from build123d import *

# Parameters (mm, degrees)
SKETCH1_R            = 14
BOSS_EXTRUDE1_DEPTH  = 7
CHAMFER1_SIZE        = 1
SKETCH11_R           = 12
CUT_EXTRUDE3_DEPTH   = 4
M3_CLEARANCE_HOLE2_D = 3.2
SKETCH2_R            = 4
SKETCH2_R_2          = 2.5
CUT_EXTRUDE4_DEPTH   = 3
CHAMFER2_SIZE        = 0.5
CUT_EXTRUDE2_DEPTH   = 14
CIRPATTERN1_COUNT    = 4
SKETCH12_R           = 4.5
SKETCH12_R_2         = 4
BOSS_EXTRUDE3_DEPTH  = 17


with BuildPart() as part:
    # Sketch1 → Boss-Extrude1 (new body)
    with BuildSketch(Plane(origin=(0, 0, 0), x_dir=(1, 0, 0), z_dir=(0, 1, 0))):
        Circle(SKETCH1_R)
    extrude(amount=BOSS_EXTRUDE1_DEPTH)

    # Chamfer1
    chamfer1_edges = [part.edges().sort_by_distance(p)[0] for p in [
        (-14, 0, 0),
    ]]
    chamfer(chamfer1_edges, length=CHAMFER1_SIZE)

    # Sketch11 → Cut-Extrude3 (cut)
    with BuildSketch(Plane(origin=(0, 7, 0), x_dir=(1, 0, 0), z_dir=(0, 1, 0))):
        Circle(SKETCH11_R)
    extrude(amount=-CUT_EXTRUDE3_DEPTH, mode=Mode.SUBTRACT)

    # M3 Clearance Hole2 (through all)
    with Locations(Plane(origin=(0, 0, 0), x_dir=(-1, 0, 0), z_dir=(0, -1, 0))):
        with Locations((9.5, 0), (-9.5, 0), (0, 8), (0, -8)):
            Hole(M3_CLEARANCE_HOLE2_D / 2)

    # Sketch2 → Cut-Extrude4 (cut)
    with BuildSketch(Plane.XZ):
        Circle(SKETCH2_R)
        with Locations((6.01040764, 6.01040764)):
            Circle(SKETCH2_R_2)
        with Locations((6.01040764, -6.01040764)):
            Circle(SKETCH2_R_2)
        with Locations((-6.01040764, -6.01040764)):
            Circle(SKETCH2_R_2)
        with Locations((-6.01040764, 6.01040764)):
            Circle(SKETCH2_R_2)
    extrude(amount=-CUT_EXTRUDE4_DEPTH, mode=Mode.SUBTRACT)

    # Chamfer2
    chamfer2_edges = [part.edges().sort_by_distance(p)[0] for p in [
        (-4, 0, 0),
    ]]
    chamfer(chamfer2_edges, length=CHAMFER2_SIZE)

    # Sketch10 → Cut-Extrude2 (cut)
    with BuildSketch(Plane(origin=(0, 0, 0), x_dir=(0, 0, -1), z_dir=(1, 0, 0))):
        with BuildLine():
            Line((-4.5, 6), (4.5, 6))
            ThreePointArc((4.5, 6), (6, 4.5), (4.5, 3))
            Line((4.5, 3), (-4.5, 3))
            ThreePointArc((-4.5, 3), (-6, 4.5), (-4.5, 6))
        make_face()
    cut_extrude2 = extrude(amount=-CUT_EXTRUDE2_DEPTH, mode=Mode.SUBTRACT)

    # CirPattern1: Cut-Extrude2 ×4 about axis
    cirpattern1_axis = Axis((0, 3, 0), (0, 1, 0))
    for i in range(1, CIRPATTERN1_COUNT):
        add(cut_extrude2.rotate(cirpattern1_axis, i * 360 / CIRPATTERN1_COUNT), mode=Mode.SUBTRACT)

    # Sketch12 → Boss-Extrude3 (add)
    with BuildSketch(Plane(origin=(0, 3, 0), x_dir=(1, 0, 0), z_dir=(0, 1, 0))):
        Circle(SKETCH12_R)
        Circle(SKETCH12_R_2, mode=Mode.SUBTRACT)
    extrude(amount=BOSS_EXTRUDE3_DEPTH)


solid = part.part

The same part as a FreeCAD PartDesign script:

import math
import FreeCAD as App
import Part
import Sketcher


def edges_at(feature, points):
    """Names of the edges that pass closest to the given points."""
    edges = feature.Shape.Edges
    near = lambda p: min(range(len(edges)), key=lambda i: edges[i].distToShape(Part.Vertex(*p))[0])
    return sorted({f"Edge{near(p) + 1}" for p in points})

doc = App.newDocument("Part")
params = doc.addObject("Spreadsheet::Sheet", "Params")
for row, (alias, value) in enumerate([
    ("sketch1_diameter", "28 mm"),
    ("pad1_length", "7 mm"),
    ("chamfer_size", "1 mm"),
    ("sketch2_diameter", "24 mm"),
    ("pocket1_length", "4 mm"),
    ("sketch3_diameter", "3.2 mm"),
    ("hole_diameter", "3.2 mm"),
    ("sketch4_diameter", "8 mm"),
    ("sketch4_diameter2", "5 mm"),
    ("pocket2_length", "3 mm"),
    ("chamfer2_size", "0.5 mm"),
    ("sketch5_radius", "1.5 mm"),
    ("sketch5_height", "9 mm"),
    ("pocket3_length", "14 mm"),
    ("sketch6_diameter", "9 mm"),
    ("sketch6_diameter2", "8 mm"),
    ("pad2_length", "17 mm"),
], start=1):
    params.set(f"A{row}", alias)
    params.set(f"B{row}", "=" + value)
    params.setAlias(f"B{row}", alias)

body = doc.addObject("PartDesign::Body", "Body")

sketch1 = body.newObject("Sketcher::SketchObject", "Sketch")
sketch1.AttachmentSupport = (doc.getObject("XZ_Plane"), [""])
sketch1.MapMode = "FlatFace"
sketch1.addGeometry(Part.Circle(App.Vector(0, 0, 0), App.Vector(0, 0, 1), 14), False)
sketch1.addConstraint([
    Sketcher.Constraint("Coincident", 0, 3, -1, 1),
    Sketcher.Constraint("Diameter", 0, 28.0),
])
sketch1.setExpression("Constraints[1]", "Params.sketch1_diameter")
pad1 = body.newObject("PartDesign::Pad", "Pad")
pad1.Profile = sketch1
pad1.setExpression("Length", "Params.pad1_length")
pad1.Reversed = True
doc.recompute()

chamfer = body.newObject("PartDesign::Chamfer", "Chamfer")
chamfer.Base = (pad1, edges_at(pad1, [(-14, 0, 0)]))
chamfer.setExpression("Size", "Params.chamfer_size")

sketch2 = body.newObject("Sketcher::SketchObject", "Sketch001")
sketch2.AttachmentSupport = (doc.getObject("XZ_Plane"), [""])
sketch2.MapMode = "FlatFace"
sketch2.AttachmentOffset = App.Placement(App.Vector(0, 0, -7), App.Rotation())
sketch2.addGeometry(Part.Circle(App.Vector(0, 0, 0), App.Vector(0, 0, 1), 12), False)
sketch2.addConstraint([
    Sketcher.Constraint("Coincident", 0, 3, -1, 1),
    Sketcher.Constraint("Diameter", 0, 24.0),
])
sketch2.setExpression("Constraints[1]", "Params.sketch2_diameter")
pocket1 = body.newObject("PartDesign::Pocket", "Pocket")
pocket1.Profile = sketch2
pocket1.setExpression("Length", "Params.pocket1_length")
pocket1.Reversed = True

sketch3 = body.newObject("Sketcher::SketchObject", "Sketch002")
sketch3.AttachmentSupport = (doc.getObject("XZ_Plane"), [""])
sketch3.MapMode = "FlatFace"
sketch3.addGeometry([
    Part.Circle(App.Vector(-9.5, 0, 0), App.Vector(0, 0, 1), 1.6),
    Part.Circle(App.Vector(9.5, 0, 0), App.Vector(0, 0, 1), 1.6),
    Part.Circle(App.Vector(0, -8, 0), App.Vector(0, 0, 1), 1.6),
    Part.Circle(App.Vector(0, 8, 0), App.Vector(0, 0, 1), 1.6),
], False)
sketch3.addConstraint([
    Sketcher.Constraint("Equal", 0, 1),
    Sketcher.Constraint("Equal", 1, 2),
    Sketcher.Constraint("Equal", 2, 3),
    Sketcher.Constraint("Symmetric", 0, 3, 1, 3, -1, 1),
    Sketcher.Constraint("Symmetric", 2, 3, 3, 3, -1, 1),
    Sketcher.Constraint("PointOnObject", 0, 3, -1),
    Sketcher.Constraint("PointOnObject", 2, 3, -2),
    Sketcher.Constraint("Diameter", 0, 3.2),
    Sketcher.Constraint("DistanceY", 2, 3, -1, 1, 8.0),
    Sketcher.Constraint("DistanceX", 0, 3, 1, 3, 19.0),
])
sketch3.setExpression("Constraints[7]", "Params.sketch3_diameter")
doc.recompute()
hole = body.newObject("PartDesign::Hole", "Hole")
hole.Profile = sketch3
hole.ThreadType = "None"
hole.setExpression("Diameter", "Params.hole_diameter")
hole.DepthType = "ThroughAll"

sketch4 = body.newObject("Sketcher::SketchObject", "Sketch003")
sketch4.AttachmentSupport = (doc.getObject("XZ_Plane"), [""])
sketch4.MapMode = "FlatFace"
sketch4.addGeometry([
    Part.Circle(App.Vector(0, 0, 0), App.Vector(0, 0, 1), 4),
    Part.Circle(App.Vector(6, 6, 0), App.Vector(0, 0, 1), 2.5),
    Part.Circle(App.Vector(6, -6, 0), App.Vector(0, 0, 1), 2.5),
    Part.Circle(App.Vector(-6, -6, 0), App.Vector(0, 0, 1), 2.5),
    Part.Circle(App.Vector(-6, 6, 0), App.Vector(0, 0, 1), 2.5),
], False)
sketch4.addConstraint([
    Sketcher.Constraint("Coincident", 0, 3, -1, 1),
    Sketcher.Constraint("Equal", 1, 2),
    Sketcher.Constraint("Equal", 2, 3),
    Sketcher.Constraint("Equal", 3, 4),
    Sketcher.Constraint("Symmetric", 1, 3, 3, 3, -1, 1),
    Sketcher.Constraint("Symmetric", 2, 3, 4, 3, -1, 1),
    Sketcher.Constraint("Symmetric", 2, 3, 3, 3, -2),
    Sketcher.Constraint("Diameter", 0, 8.0),
    Sketcher.Constraint("Diameter", 1, 5.0),
    Sketcher.Constraint("DistanceX", -1, 1, 1, 3, 6.010408),
    Sketcher.Constraint("DistanceY", -1, 1, 1, 3, 6.010408),
])
sketch4.setExpression("Constraints[7]", "Params.sketch4_diameter")
sketch4.setExpression("Constraints[8]", "Params.sketch4_diameter2")
pocket2 = body.newObject("PartDesign::Pocket", "Pocket001")
pocket2.Profile = sketch4
pocket2.setExpression("Length", "Params.pocket2_length")
doc.recompute()

chamfer2 = body.newObject("PartDesign::Chamfer", "Chamfer001")
chamfer2.Base = (pocket2, edges_at(pocket2, [(-4, 0, 0)]))
chamfer2.setExpression("Size", "Params.chamfer2_size")

sketch5 = body.newObject("Sketcher::SketchObject", "Sketch004")
sketch5.AttachmentSupport = (doc.getObject("YZ_Plane"), [""])
sketch5.MapMode = "FlatFace"
sketch5.addGeometry([
    Part.LineSegment(App.Vector(6, -4.5, 0), App.Vector(6, 4.5, 0)),
    Part.ArcOfCircle(Part.Circle(App.Vector(4.5, 4.5, 0), App.Vector(0, 0, 1), 1.5), math.radians(0), math.radians(180)),
    Part.LineSegment(App.Vector(3, 4.5, 0), App.Vector(3, -4.5, 0)),
    Part.ArcOfCircle(Part.Circle(App.Vector(4.5, -4.5, 0), App.Vector(0, 0, 1), 1.5), math.radians(180), math.radians(360)),
], False)
sketch5.addConstraint([
    Sketcher.Constraint("Tangent", 0, 2, 1, 1),
    Sketcher.Constraint("Tangent", 1, 2, 2, 1),
    Sketcher.Constraint("Tangent", 2, 2, 3, 1),
    Sketcher.Constraint("Tangent", 3, 2, 0, 1),
    Sketcher.Constraint("Vertical", 0),
    Sketcher.Constraint("Vertical", 2),
    Sketcher.Constraint("Radius", 1, 1.5),
    Sketcher.Constraint("DistanceY", 0, 1, 0, 2, 9.0),
    Sketcher.Constraint("DistanceX", -1, 1, 0, 2, 6.0),
    Sketcher.Constraint("DistanceY", -1, 1, 1, 3, 4.5),
])
sketch5.setExpression("Constraints[6]", "Params.sketch5_radius")
sketch5.setExpression("Constraints[7]", "Params.sketch5_height")
pocket3 = body.newObject("PartDesign::Pocket", "Pocket002")
pocket3.Profile = sketch5
pocket3.setExpression("Length", "Params.pocket3_length")
doc.recompute()

polarpattern = body.newObject("PartDesign::PolarPattern", "PolarPattern")
polarpattern.Originals = [pocket3]
polarpattern.Axis = (doc.getObject("Y_Axis"), [""])
polarpattern.Angle = 360
polarpattern.Occurrences = 4
body.Tip = polarpattern

sketch6 = body.newObject("Sketcher::SketchObject", "Sketch005")
sketch6.AttachmentSupport = (doc.getObject("XZ_Plane"), [""])
sketch6.MapMode = "FlatFace"
sketch6.AttachmentOffset = App.Placement(App.Vector(0, 0, -3), App.Rotation())
sketch6.addGeometry([
    Part.Circle(App.Vector(0, 0, 0), App.Vector(0, 0, 1), 4.5),
    Part.Circle(App.Vector(0, 0, 0), App.Vector(0, 0, 1), 4),
], False)
sketch6.addConstraint([
    Sketcher.Constraint("Coincident", 0, 3, -1, 1),
    Sketcher.Constraint("Coincident", 1, 3, -1, 1),
    Sketcher.Constraint("Diameter", 0, 9.0),
    Sketcher.Constraint("Diameter", 1, 8.0),
])
sketch6.setExpression("Constraints[2]", "Params.sketch6_diameter")
sketch6.setExpression("Constraints[3]", "Params.sketch6_diameter2")
pad2 = body.newObject("PartDesign::Pad", "Pad001")
pad2.Profile = sketch6
pad2.setExpression("Length", "Params.pad2_length")
pad2.Reversed = True

doc.recompute()
